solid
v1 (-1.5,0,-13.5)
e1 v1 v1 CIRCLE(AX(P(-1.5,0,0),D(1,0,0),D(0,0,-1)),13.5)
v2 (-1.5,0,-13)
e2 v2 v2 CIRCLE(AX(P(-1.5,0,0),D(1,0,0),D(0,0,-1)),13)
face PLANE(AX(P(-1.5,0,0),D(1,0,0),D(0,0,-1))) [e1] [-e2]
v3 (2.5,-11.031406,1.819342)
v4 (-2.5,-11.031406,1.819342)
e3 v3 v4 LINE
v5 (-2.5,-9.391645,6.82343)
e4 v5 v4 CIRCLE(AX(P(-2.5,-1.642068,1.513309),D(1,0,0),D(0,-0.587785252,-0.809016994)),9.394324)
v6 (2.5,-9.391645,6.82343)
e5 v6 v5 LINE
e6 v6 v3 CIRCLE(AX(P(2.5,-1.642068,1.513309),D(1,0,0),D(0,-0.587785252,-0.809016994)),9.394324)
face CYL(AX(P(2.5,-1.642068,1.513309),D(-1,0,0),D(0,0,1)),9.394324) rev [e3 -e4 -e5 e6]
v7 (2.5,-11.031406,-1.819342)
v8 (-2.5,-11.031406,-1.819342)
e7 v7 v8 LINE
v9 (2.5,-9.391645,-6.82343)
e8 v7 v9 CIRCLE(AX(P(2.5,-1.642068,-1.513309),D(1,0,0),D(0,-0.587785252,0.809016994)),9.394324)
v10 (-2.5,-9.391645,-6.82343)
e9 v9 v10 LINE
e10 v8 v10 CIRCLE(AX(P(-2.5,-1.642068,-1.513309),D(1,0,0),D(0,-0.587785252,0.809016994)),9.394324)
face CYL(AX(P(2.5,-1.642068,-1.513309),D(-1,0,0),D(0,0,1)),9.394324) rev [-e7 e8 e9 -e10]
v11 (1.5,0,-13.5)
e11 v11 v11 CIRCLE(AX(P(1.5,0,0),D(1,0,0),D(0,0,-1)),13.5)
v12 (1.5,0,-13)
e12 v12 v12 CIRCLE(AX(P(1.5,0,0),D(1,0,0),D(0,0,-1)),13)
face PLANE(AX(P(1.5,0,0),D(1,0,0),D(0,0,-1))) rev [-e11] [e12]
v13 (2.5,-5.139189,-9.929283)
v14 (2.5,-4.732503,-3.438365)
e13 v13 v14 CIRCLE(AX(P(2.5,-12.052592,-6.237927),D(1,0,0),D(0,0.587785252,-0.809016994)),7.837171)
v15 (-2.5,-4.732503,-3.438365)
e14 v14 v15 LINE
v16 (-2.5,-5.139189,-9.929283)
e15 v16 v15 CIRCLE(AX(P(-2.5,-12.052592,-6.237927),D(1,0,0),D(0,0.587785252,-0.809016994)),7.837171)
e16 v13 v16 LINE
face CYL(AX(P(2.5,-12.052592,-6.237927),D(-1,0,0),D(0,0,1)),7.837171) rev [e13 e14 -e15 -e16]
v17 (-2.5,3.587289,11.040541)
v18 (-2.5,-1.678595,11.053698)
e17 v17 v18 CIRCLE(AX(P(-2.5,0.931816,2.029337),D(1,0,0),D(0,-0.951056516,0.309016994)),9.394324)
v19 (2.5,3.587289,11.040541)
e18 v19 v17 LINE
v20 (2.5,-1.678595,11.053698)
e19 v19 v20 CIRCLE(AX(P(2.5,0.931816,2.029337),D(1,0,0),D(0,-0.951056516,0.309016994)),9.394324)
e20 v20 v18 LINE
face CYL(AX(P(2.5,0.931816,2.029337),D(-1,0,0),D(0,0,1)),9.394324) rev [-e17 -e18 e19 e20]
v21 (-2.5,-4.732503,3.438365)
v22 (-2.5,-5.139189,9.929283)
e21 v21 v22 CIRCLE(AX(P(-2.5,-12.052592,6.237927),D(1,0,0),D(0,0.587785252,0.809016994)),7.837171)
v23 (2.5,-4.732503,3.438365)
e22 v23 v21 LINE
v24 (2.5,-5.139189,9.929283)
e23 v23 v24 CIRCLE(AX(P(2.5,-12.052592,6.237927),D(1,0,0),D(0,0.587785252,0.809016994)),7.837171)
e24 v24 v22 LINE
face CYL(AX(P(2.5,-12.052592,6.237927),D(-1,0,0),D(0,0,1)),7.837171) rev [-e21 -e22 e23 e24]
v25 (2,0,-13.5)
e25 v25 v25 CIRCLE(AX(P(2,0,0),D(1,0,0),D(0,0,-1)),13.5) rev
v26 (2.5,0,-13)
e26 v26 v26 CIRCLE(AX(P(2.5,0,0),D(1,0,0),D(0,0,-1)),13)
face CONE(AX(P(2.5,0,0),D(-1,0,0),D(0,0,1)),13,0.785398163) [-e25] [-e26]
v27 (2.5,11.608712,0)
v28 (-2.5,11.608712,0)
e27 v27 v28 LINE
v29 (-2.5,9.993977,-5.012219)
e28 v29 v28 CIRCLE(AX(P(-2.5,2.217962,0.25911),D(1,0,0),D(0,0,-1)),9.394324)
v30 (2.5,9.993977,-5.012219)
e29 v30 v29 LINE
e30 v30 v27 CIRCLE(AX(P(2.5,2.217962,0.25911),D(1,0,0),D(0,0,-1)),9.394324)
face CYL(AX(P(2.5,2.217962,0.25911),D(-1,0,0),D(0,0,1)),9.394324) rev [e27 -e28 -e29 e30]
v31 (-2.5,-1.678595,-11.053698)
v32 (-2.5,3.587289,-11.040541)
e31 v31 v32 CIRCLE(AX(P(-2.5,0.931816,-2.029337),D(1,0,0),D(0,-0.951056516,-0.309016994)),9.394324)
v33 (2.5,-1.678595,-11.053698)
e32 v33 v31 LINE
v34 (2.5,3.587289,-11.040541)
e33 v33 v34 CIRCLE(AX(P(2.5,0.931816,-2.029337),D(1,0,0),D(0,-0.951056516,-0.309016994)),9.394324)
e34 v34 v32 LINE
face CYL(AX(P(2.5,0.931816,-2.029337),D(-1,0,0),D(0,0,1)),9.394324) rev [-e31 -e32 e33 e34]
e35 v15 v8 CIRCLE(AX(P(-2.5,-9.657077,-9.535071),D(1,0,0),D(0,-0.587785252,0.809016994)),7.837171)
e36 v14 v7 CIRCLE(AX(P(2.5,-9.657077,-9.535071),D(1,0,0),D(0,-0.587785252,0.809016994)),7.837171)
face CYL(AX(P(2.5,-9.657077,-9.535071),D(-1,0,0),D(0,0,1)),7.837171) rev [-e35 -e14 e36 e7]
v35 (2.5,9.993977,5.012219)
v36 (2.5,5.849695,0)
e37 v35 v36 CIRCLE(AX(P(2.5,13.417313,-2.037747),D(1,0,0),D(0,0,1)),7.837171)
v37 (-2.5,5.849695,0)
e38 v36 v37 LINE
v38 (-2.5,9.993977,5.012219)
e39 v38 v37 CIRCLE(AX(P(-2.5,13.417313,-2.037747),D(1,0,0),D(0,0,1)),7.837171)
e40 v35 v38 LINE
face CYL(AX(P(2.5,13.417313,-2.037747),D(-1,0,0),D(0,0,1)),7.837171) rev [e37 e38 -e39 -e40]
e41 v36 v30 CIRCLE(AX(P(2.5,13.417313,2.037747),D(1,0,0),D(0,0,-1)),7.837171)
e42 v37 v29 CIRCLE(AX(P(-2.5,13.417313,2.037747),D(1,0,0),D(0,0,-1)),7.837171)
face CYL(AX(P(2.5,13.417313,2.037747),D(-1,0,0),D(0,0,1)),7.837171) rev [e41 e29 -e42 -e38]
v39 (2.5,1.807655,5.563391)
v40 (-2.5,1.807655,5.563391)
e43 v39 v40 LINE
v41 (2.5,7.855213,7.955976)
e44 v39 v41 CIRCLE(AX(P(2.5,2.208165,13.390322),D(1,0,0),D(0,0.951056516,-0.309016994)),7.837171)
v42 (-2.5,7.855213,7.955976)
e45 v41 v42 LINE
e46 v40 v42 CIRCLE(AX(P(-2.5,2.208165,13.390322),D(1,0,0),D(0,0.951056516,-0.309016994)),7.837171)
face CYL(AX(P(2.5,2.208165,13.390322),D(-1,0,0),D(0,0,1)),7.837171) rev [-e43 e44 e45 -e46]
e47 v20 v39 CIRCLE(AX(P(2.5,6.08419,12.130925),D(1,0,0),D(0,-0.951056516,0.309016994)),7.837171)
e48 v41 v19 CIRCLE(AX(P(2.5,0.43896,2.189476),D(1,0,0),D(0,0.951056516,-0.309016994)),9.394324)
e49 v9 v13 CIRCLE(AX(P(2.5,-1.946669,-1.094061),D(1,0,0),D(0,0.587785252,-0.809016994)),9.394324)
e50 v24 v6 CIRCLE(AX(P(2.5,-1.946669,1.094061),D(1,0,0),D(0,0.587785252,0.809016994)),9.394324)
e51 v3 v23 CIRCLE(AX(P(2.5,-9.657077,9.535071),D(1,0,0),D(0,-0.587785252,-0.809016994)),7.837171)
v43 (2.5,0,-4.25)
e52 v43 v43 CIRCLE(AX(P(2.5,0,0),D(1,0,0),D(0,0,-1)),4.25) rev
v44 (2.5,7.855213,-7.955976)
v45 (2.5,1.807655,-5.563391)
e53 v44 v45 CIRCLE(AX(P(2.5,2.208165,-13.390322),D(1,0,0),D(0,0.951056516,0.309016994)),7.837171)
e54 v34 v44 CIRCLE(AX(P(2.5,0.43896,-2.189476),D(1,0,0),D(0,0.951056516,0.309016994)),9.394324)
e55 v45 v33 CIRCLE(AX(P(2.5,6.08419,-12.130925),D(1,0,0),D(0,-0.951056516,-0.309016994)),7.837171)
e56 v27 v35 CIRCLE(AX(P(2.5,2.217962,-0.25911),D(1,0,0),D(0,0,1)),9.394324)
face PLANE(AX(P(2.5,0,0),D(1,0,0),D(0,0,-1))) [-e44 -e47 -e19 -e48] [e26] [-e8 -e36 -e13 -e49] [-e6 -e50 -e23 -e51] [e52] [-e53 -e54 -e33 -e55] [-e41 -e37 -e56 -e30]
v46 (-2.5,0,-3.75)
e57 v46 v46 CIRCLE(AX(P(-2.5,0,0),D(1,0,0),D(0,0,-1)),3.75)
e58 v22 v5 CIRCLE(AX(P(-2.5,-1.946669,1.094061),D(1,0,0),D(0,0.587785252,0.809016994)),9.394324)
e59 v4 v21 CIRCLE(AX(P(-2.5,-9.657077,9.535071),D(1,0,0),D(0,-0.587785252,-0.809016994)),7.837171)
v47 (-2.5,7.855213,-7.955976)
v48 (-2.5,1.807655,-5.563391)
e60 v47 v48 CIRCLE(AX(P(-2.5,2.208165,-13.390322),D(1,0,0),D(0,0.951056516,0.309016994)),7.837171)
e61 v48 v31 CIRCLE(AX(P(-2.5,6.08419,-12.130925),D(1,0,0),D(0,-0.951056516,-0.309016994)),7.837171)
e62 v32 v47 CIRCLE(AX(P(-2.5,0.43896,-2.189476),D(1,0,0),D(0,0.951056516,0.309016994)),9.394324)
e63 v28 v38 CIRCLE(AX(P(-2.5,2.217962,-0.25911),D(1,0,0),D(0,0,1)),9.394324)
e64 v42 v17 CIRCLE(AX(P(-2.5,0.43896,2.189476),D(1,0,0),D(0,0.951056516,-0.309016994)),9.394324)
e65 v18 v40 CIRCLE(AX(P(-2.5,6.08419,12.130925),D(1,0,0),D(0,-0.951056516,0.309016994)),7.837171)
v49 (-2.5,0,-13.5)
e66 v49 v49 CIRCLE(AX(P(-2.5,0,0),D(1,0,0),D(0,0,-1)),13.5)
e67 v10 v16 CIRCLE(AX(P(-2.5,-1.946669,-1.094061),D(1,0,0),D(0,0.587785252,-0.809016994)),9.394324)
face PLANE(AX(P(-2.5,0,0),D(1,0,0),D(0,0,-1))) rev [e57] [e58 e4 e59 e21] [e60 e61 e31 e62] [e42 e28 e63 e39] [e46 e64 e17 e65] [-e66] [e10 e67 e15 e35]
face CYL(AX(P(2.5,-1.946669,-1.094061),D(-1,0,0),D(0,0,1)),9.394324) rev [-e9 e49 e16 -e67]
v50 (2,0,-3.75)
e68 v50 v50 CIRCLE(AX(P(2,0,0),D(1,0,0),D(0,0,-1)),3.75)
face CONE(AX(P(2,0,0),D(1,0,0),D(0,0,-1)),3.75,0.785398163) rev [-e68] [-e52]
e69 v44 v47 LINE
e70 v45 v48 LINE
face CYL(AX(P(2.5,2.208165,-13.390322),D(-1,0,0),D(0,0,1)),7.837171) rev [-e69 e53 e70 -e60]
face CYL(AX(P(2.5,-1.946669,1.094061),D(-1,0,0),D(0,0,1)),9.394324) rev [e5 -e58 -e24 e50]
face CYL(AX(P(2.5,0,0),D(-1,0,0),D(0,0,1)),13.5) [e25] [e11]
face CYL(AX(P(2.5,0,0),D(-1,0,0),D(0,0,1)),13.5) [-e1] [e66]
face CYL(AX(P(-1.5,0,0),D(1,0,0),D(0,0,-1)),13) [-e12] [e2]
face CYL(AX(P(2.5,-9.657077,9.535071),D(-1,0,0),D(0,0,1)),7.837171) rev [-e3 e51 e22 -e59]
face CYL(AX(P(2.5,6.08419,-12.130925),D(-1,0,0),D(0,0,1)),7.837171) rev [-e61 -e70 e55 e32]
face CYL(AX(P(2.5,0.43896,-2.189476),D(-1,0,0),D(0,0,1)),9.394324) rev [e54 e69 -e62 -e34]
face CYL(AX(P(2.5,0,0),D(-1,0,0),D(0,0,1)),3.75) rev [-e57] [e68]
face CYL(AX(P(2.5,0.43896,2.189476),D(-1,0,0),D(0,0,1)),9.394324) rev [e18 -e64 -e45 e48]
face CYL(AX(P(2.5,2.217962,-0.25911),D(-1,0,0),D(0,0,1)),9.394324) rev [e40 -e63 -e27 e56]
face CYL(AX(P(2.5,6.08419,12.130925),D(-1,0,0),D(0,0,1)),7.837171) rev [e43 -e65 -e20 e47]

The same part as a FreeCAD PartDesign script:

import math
import FreeCAD as App
import Part
import Sketcher


def edges_at(feature, points):
    """Names of the edges that pass closest to the given points."""
    edges = feature.Shape.Edges
    near = lambda p: min(range(len(edges)), key=lambda i: edges[i].distToShape(Part.Vertex(*p))[0])
    return sorted({f"Edge{near(p) + 1}" for p in points})

doc = App.newDocument("Part")
params = doc.addObject("Spreadsheet::Sheet", "Params")
for row, (alias, value) in enumerate([
    ("sketch1_diameter", "27 mm"),
    ("sketch1_diameter2", "7.5 mm"),
    ("pad1_length", "5 mm"),
    ("pocket1_length", "40.509739 mm"),
    ("chamfer_size", "0.5 mm"),
    ("sketch3_diameter", "27 mm"),
    ("sketch3_diameter2", "26 mm"),
    ("pocket2_length", "3 mm"),
], start=1):
    params.set(f"A{row}", alias)
    params.set(f"B{row}", "=" + value)
    params.setAlias(f"B{row}", alias)

body = doc.addObject("PartDesign::Body", "Body")

sketch1 = doc.addObject("Sketcher::SketchObject", "Sketch")
body.addObject(sketch1)
sketch1.AttachmentSupport = (doc.YZ_Plane, [""])
sketch1.MapMode = "FlatFace"
sketch1.addGeometry(Part.Circle(App.Vector(0, 0, 0), App.Vector(0, 0, 1), 13.5), False)
sketch1.addGeometry(Part.Circle(App.Vector(0, 0, 0), App.Vector(0, 0, 1), 3.8), False)
sketch1.addConstraint(Sketcher.Constraint("Coincident", 0, 3, -1, 1))
sketch1.addConstraint(Sketcher.Constraint("Coincident", 1, 3, -1, 1))
sketch1.addConstraint(Sketcher.Constraint("Diameter", 0, 27.0))
sketch1.addConstraint(Sketcher.Constraint("Diameter", 1, 7.5))
sketch1.setExpression("Constraints[2]", "Params.sketch1_diameter")
sketch1.setExpression("Constraints[3]", "Params.sketch1_diameter2")
pad1 = doc.addObject("PartDesign::Pad", "Pad")
body.addObject(pad1)
pad1.Profile = sketch1
pad1.setExpression("Length", "Params.pad1_length")
pad1.Midplane = True

sketch2 = doc.addObject("Sketcher::SketchObject", "Sketch001")
body.addObject(sketch2)
sketch2.AttachmentSupport = (doc.YZ_Plane, [""])
sketch2.MapMode = "FlatFace"
sketch2.addGeometry(Part.ArcOfCircle(Part.Circle(App.Vector(13.417313, -2.037747, 0), App.Vector(0, 0, 1), 7.837171), math.radians(115.900372), math.radians(164.929315)), False)
sketch2.addGeometry(Part.ArcOfCircle(Part.Circle(App.Vector(13.417313, 2.037747, 0), App.Vector(0, 0, 1), 7.837171), math.radians(-164.929315), math.radians(-115.900372)), False)
sketch2.addGeometry(Part.ArcOfCircle(Part.Circle(App.Vector(2.217962, 0.25911, 0), App.Vector(0, 0, 1), 9.394324), math.radians(-34.133185), math.radians(-1.580505)), False)
sketch2.addGeometry(Part.ArcOfCircle(Part.Circle(App.Vector(2.217962, -0.25911, 0), App.Vector(0, 0, 1), 9.394324), math.radians(1.580505), math.radians(34.133185)), False)
sketch2.addConstraint(Sketcher.Constraint("Coincident", 0, 2, 1, 1))
sketch2.addConstraint(Sketcher.Constraint("Coincident", 1, 2, 2, 1))
sketch2.addConstraint(Sketcher.Constraint("Coincident", 2, 2, 3, 1))
sketch2.addConstraint(Sketcher.Constraint("Coincident", 3, 2, 0, 1))
sketch2.addConstraint(Sketcher.Constraint("Equal", 0, 1))
sketch2.addConstraint(Sketcher.Constraint("Equal", 2, 3))
sketch2.addConstraint(Sketcher.Constraint("Symmetric", 0, 3, 1, 3, -1))
sketch2.addConstraint(Sketcher.Constraint("Symmetric", 2, 3, 3, 3, -1))
sketch2.addConstraint(Sketcher.Constraint("Radius", 0, 7.837171))
sketch2.addConstraint(Sketcher.Constraint("Radius", 2, 9.394324))
sketch2.addConstraint(Sketcher.Constraint("DistanceX", 2, 2, 1, 3, 1.808602))
sketch2.addConstraint(Sketcher.Constraint("DistanceX", -1, 1, 2, 3, 2.217962))
sketch2.addConstraint(Sketcher.Constraint("DistanceY", -1, 1, 2, 3, 0.25911))
sketch2.addConstraint(Sketcher.Constraint("DistanceY", 1, 2, -1, 1, 5.012219))
pocket1 = doc.addObject("PartDesign::Pocket", "Pocket")
body.addObject(pocket1)
pocket1.Profile = sketch2
pocket1.setExpression("Length", "Params.pocket1_length")
pocket1.Midplane = True
doc.recompute()

polarpattern = doc.addObject("PartDesign::PolarPattern", "PolarPattern")
body.addObject(polarpattern)
polarpattern.Originals = [pocket1]
polarpattern.Axis = (doc.X_Axis, [""])
polarpattern.Angle = 360
polarpattern.Occurrences = 5
body.Tip = polarpattern
doc.recompute()

chamfer = doc.addObject("PartDesign::Chamfer", "Chamfer")
body.addObject(chamfer)
chamfer.Base = (polarpattern, edges_at(polarpattern, [(2.5, 0, 13.5), (2.5, 0, 3.75)]))
chamfer.setExpression("Size", "Params.chamfer_size")

sketch3 = doc.addObject("Sketcher::SketchObject", "Sketch002")
body.addObject(sketch3)
sketch3.AttachmentSupport = (doc.YZ_Plane, [""])
sketch3.MapMode = "FlatFace"
sketch3.addGeometry(Part.Circle(App.Vector(0, 0, 0), App.Vector(0, 0, 1), 14), False)
sketch3.addGeometry(Part.Circle(App.Vector(0, 0, 0), App.Vector(0, 0, 1), 13), False)
sketch3.addConstraint(Sketcher.Constraint("Coincident", 0, 3, -1, 1))
sketch3.addConstraint(Sketcher.Constraint("Coincident", 1, 3, -1, 1))
sketch3.addConstraint(Sketcher.Constraint("Diameter", 0, 27.0))
sketch3.addConstraint(Sketcher.Constraint("Diameter", 1, 26.0))
sketch3.setExpression("Constraints[2]", "Params.sketch3_diameter")
sketch3.setExpression("Constraints[3]", "Params.sketch3_diameter2")
pocket2 = doc.addObject("PartDesign::Pocket", "Pocket001")
body.addObject(pocket2)
pocket2.Profile = sketch3
pocket2.setExpression("Length", "Params.pocket2_length")
pocket2.Midplane = True

doc.recompute()
